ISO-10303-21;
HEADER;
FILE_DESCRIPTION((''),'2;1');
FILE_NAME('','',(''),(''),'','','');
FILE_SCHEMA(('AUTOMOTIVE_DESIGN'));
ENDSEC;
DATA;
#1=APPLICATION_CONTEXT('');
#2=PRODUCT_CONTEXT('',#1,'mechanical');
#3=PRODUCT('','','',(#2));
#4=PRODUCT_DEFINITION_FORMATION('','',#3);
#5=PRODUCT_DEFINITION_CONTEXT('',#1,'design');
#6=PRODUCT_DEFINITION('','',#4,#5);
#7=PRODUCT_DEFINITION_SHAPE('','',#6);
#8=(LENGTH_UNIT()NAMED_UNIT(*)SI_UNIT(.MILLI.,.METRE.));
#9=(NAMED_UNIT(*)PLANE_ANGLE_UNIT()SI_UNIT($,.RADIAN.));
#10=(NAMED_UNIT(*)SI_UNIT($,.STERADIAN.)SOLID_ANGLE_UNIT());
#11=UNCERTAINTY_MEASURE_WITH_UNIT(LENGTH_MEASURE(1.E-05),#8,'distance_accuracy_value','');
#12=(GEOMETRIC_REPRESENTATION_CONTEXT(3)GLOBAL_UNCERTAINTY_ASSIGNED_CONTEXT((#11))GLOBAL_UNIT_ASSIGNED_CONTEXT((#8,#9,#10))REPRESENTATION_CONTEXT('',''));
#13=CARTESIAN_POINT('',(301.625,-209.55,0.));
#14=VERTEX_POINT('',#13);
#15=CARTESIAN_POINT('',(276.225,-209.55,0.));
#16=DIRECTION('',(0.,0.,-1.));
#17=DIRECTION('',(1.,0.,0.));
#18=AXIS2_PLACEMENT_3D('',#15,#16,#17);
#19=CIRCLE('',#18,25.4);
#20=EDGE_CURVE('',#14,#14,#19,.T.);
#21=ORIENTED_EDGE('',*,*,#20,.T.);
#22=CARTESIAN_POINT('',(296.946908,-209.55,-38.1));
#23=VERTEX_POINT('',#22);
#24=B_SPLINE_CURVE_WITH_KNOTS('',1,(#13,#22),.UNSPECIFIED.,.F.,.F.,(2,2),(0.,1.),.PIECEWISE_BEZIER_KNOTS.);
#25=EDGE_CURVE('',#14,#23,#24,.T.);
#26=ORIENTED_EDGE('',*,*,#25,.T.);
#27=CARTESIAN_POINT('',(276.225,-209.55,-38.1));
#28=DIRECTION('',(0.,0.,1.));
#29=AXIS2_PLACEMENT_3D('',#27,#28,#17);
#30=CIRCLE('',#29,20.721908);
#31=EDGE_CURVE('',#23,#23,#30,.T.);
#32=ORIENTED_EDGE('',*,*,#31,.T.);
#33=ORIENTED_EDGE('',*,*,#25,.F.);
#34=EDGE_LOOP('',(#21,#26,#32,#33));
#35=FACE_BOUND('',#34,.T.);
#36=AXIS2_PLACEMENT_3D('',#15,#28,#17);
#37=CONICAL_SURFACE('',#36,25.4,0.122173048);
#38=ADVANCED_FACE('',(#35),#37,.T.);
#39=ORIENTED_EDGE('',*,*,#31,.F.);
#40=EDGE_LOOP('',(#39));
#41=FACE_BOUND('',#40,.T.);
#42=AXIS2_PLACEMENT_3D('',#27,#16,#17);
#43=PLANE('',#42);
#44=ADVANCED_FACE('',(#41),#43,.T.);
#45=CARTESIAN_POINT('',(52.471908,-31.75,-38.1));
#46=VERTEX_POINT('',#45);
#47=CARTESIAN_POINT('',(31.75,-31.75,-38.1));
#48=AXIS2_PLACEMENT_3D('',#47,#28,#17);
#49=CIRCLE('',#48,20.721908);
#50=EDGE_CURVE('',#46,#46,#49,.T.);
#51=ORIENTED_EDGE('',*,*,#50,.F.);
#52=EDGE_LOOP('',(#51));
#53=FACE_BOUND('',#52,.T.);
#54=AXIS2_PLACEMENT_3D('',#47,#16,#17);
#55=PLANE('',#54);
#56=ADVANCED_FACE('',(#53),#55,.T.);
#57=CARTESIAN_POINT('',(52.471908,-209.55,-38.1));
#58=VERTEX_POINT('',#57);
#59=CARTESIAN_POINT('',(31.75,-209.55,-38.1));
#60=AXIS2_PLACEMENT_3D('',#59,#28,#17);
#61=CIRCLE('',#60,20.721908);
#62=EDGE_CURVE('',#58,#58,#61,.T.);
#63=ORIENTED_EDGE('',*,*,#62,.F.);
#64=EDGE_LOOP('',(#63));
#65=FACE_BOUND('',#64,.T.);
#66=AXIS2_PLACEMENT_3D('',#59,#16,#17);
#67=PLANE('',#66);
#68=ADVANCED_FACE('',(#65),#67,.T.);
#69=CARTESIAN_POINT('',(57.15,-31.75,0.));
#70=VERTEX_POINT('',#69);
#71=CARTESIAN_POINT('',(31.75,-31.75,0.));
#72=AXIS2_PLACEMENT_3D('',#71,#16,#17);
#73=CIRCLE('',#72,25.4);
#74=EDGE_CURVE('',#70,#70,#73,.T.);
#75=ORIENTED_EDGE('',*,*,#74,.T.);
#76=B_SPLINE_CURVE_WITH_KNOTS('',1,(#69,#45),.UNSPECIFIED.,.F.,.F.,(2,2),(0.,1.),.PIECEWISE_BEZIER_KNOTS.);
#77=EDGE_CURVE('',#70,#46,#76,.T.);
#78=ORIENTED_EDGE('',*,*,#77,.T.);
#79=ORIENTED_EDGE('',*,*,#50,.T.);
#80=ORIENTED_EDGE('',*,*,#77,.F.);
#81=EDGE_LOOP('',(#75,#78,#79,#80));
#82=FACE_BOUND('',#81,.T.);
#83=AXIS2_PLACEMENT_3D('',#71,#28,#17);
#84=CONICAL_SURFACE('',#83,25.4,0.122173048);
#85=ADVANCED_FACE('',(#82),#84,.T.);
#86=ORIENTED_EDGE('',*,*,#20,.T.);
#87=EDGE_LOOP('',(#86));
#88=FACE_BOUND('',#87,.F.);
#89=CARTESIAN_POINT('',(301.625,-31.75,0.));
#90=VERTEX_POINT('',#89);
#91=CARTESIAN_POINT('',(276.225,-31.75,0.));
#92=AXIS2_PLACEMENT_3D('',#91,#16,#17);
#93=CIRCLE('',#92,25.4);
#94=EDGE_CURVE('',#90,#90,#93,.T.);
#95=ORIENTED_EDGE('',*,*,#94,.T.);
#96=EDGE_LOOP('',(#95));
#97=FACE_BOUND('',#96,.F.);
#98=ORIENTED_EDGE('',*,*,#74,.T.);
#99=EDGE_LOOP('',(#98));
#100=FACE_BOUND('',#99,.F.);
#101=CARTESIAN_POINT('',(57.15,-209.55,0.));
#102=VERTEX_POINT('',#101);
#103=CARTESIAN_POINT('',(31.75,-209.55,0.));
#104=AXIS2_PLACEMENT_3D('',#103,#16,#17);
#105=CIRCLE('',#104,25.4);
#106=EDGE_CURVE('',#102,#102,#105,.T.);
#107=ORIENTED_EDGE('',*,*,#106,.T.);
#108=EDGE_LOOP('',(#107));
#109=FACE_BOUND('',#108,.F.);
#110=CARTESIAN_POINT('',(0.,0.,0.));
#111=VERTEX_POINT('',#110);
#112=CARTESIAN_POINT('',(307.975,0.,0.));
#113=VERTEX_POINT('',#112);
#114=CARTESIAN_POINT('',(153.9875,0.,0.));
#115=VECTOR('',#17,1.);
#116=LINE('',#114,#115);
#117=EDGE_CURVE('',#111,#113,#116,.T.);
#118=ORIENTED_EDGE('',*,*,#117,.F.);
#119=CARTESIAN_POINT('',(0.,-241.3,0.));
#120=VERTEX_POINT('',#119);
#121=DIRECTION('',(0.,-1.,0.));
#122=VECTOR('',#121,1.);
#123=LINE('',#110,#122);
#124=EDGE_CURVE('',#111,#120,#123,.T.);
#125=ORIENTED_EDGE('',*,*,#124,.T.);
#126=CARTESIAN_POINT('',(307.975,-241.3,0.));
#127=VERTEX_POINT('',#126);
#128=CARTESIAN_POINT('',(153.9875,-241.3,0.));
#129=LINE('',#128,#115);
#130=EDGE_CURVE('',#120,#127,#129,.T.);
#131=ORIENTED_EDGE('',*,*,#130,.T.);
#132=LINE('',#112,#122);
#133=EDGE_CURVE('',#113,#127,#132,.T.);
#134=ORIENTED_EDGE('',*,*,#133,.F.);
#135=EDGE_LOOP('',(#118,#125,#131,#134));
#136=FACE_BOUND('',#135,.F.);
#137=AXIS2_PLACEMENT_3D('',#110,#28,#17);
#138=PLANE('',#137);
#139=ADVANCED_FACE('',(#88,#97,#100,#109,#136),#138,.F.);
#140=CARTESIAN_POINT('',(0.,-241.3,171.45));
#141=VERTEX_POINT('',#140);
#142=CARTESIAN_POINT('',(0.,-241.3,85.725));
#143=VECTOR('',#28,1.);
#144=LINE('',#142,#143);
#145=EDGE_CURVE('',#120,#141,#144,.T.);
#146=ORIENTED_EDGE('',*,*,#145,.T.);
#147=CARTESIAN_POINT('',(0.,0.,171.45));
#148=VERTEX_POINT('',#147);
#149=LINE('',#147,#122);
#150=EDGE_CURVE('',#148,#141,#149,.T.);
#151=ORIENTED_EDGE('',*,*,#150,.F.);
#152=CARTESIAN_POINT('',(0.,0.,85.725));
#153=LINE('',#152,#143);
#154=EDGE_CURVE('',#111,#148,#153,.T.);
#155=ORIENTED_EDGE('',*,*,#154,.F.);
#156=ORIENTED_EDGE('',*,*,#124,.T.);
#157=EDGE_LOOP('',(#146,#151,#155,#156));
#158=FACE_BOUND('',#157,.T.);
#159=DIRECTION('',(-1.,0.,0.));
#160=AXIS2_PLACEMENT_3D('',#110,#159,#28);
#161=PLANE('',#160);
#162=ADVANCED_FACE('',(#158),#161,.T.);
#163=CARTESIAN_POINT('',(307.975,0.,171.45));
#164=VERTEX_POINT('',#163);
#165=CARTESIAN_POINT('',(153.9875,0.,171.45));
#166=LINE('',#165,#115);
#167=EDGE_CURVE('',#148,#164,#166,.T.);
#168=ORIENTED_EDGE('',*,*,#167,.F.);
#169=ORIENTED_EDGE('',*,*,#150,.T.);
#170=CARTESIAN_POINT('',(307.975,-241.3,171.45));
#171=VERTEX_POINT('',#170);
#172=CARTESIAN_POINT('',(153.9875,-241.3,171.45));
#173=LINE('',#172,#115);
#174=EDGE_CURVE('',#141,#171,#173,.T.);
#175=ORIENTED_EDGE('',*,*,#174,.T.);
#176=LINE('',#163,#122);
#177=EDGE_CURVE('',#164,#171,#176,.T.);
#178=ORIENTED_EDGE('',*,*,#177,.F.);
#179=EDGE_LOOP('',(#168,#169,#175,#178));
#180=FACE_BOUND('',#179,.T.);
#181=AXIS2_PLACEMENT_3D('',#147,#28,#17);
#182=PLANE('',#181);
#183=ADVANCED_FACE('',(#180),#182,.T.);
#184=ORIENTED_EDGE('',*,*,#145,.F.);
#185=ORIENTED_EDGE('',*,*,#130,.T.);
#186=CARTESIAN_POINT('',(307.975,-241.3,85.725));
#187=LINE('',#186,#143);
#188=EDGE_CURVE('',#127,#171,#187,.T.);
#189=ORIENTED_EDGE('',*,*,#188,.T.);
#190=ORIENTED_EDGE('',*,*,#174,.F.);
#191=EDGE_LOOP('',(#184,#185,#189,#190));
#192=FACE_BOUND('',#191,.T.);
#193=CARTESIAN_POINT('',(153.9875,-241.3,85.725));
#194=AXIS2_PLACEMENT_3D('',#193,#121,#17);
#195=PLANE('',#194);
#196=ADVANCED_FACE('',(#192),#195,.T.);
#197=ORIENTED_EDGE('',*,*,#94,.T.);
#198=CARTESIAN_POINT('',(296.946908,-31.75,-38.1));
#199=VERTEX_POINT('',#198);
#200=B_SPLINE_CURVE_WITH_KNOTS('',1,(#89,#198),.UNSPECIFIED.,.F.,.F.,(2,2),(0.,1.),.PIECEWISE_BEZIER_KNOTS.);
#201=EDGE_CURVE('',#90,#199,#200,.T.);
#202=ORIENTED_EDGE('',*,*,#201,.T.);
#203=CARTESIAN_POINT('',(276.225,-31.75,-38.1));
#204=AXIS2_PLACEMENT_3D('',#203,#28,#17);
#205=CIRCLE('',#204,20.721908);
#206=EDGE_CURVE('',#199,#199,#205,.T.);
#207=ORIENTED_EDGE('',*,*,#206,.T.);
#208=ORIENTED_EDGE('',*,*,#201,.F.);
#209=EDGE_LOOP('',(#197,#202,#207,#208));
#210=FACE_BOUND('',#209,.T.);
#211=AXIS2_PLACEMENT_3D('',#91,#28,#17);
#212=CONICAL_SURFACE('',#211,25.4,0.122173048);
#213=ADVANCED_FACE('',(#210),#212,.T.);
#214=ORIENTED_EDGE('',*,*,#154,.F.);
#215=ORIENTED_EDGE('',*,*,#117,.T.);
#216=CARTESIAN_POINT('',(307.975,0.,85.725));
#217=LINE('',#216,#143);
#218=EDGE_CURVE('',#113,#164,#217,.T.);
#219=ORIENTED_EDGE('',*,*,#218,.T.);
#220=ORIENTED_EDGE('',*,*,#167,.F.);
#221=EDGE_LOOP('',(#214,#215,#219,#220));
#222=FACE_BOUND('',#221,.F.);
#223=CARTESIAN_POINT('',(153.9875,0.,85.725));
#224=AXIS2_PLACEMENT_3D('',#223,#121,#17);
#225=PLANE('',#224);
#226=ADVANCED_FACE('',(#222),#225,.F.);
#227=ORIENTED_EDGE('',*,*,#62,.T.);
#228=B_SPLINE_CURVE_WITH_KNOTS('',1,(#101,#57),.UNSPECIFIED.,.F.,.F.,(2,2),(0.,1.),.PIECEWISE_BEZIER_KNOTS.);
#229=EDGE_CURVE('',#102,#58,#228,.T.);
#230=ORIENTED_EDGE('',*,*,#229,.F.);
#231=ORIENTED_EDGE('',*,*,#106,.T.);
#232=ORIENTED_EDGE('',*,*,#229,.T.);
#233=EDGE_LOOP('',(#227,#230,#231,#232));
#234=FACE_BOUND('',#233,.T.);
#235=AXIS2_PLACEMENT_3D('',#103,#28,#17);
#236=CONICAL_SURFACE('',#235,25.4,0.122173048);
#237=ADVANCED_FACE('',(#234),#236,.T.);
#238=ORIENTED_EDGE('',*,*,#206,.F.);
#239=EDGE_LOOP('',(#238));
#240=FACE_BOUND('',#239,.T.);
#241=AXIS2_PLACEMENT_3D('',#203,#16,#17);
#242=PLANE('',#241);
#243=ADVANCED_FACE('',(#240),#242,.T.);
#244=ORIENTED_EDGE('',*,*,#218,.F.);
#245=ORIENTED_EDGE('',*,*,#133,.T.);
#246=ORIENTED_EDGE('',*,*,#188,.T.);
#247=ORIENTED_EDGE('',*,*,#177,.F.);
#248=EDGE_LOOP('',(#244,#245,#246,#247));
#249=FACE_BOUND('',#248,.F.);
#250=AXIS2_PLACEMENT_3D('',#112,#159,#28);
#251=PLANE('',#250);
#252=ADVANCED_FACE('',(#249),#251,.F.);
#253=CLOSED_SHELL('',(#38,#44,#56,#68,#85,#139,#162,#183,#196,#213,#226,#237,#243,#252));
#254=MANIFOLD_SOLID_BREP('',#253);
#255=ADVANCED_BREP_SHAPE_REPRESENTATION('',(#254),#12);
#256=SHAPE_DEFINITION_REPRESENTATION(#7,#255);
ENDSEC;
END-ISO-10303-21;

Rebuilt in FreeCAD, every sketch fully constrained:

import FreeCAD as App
import Part
import Sketcher

V = App.Vector
Q = App.Units.Quantity


def add_polygon(sketch, points):
    """Adds a closed chain of lines whose ends are joined by coincident constraints."""
    first, n = sketch.GeometryCount, len(points)
    for a, b in zip(points, points[1:] + points[:1]):
        sketch.addGeometry(Part.LineSegment(App.Vector(*a, 0), App.Vector(*b, 0)), False)
    for i in range(n):
        sketch.addConstraint(Sketcher.Constraint("Coincident", first + i, 2, first + (i + 1) % n, 1))

doc = App.newDocument("Part")
body = doc.addObject("PartDesign::Body", "Body")

# Sketch on XZ plane
sketch1 = doc.addObject("Sketcher::SketchObject", "Sketch")
body.addObject(sketch1)
sketch1.AttachmentSupport = (doc.XZ_Plane, [""])
sketch1.MapMode = "FlatFace"
add_polygon(sketch1, [(0, 171.45), (0, 0), (307.975, 0), (307.975, 171.45)])  # lines 0-3
sketch1.addConstraint(Sketcher.Constraint("Vertical", 0))
sketch1.addConstraint(Sketcher.Constraint("Horizontal", 1))
sketch1.addConstraint(Sketcher.Constraint("Vertical", 2))
sketch1.addConstraint(Sketcher.Constraint("Horizontal", 3))
sketch1.addConstraint(Sketcher.Constraint("Coincident", 0, 2, -1, 1))
sketch1.addConstraint(Sketcher.Constraint("DistanceY", 0, 2, 0, 1, Q("6.75 in")))
sketch1.addConstraint(Sketcher.Constraint("DistanceX", 1, 1, 1, 2, Q("12.125 in")))
pad1 = doc.addObject("PartDesign::Pad", "Pad")
body.addObject(pad1)
pad1.Profile = sketch1
pad1.Length = Q("9.5 in")

# Sketch on XY plane
sketch2 = doc.addObject("Sketcher::SketchObject", "Sketch001")
body.addObject(sketch2)
sketch2.AttachmentSupport = (doc.XY_Plane, [""])
sketch2.MapMode = "FlatFace"
sketch2.addGeometry(Part.Circle(V(31.75, -209.55, 0), V(0, 0, 1), 25.4), False)
sketch2.addGeometry(Part.Circle(V(276.225, -209.55, 0), V(0, 0, 1), 25.4), False)
sketch2.addGeometry(Part.Circle(V(276.225, -31.75, 0), V(0, 0, 1), 25.4), False)
sketch2.addGeometry(Part.Circle(V(31.75, -31.75, 0), V(0, 0, 1), 25.4), False)
sketch2.addConstraint(Sketcher.Constraint("Equal", 0, 1))
sketch2.addConstraint(Sketcher.Constraint("Equal", 1, 2))
sketch2.addConstraint(Sketcher.Constraint("Equal", 2, 3))
sketch2.addConstraint(Sketcher.Constraint("Horizontal", 0, 3, 1, 3))
sketch2.addConstraint(Sketcher.Constraint("Horizontal", 2, 3, 3, 3))
sketch2.addConstraint(Sketcher.Constraint("Vertical", 1, 3, 2, 3))
sketch2.addConstraint(Sketcher.Constraint("Vertical", 0, 3, 3, 3))
sketch2.addConstraint(Sketcher.Constraint("Diameter", 0, Q("2 in")))
sketch2.addConstraint(Sketcher.Constraint("DistanceY", 1, 3, 2, 3, Q("7 in")))
sketch2.addConstraint(Sketcher.Constraint("DistanceX", -1, 1, 0, 3, Q("1.25 in")))
sketch2.addConstraint(Sketcher.Constraint("DistanceY", 0, 3, -1, 1, Q("8.25 in")))
sketch2.addConstraint(Sketcher.Constraint("DistanceX", -1, 1, 1, 3, Q("10.875 in")))
pad2 = doc.addObject("PartDesign::Pad", "Pad001")
body.addObject(pad2)
pad2.Profile = sketch2
pad2.Length = Q("1.5 in")
pad2.Reversed = True
pad2.TaperAngle = -7

doc.recompute()
